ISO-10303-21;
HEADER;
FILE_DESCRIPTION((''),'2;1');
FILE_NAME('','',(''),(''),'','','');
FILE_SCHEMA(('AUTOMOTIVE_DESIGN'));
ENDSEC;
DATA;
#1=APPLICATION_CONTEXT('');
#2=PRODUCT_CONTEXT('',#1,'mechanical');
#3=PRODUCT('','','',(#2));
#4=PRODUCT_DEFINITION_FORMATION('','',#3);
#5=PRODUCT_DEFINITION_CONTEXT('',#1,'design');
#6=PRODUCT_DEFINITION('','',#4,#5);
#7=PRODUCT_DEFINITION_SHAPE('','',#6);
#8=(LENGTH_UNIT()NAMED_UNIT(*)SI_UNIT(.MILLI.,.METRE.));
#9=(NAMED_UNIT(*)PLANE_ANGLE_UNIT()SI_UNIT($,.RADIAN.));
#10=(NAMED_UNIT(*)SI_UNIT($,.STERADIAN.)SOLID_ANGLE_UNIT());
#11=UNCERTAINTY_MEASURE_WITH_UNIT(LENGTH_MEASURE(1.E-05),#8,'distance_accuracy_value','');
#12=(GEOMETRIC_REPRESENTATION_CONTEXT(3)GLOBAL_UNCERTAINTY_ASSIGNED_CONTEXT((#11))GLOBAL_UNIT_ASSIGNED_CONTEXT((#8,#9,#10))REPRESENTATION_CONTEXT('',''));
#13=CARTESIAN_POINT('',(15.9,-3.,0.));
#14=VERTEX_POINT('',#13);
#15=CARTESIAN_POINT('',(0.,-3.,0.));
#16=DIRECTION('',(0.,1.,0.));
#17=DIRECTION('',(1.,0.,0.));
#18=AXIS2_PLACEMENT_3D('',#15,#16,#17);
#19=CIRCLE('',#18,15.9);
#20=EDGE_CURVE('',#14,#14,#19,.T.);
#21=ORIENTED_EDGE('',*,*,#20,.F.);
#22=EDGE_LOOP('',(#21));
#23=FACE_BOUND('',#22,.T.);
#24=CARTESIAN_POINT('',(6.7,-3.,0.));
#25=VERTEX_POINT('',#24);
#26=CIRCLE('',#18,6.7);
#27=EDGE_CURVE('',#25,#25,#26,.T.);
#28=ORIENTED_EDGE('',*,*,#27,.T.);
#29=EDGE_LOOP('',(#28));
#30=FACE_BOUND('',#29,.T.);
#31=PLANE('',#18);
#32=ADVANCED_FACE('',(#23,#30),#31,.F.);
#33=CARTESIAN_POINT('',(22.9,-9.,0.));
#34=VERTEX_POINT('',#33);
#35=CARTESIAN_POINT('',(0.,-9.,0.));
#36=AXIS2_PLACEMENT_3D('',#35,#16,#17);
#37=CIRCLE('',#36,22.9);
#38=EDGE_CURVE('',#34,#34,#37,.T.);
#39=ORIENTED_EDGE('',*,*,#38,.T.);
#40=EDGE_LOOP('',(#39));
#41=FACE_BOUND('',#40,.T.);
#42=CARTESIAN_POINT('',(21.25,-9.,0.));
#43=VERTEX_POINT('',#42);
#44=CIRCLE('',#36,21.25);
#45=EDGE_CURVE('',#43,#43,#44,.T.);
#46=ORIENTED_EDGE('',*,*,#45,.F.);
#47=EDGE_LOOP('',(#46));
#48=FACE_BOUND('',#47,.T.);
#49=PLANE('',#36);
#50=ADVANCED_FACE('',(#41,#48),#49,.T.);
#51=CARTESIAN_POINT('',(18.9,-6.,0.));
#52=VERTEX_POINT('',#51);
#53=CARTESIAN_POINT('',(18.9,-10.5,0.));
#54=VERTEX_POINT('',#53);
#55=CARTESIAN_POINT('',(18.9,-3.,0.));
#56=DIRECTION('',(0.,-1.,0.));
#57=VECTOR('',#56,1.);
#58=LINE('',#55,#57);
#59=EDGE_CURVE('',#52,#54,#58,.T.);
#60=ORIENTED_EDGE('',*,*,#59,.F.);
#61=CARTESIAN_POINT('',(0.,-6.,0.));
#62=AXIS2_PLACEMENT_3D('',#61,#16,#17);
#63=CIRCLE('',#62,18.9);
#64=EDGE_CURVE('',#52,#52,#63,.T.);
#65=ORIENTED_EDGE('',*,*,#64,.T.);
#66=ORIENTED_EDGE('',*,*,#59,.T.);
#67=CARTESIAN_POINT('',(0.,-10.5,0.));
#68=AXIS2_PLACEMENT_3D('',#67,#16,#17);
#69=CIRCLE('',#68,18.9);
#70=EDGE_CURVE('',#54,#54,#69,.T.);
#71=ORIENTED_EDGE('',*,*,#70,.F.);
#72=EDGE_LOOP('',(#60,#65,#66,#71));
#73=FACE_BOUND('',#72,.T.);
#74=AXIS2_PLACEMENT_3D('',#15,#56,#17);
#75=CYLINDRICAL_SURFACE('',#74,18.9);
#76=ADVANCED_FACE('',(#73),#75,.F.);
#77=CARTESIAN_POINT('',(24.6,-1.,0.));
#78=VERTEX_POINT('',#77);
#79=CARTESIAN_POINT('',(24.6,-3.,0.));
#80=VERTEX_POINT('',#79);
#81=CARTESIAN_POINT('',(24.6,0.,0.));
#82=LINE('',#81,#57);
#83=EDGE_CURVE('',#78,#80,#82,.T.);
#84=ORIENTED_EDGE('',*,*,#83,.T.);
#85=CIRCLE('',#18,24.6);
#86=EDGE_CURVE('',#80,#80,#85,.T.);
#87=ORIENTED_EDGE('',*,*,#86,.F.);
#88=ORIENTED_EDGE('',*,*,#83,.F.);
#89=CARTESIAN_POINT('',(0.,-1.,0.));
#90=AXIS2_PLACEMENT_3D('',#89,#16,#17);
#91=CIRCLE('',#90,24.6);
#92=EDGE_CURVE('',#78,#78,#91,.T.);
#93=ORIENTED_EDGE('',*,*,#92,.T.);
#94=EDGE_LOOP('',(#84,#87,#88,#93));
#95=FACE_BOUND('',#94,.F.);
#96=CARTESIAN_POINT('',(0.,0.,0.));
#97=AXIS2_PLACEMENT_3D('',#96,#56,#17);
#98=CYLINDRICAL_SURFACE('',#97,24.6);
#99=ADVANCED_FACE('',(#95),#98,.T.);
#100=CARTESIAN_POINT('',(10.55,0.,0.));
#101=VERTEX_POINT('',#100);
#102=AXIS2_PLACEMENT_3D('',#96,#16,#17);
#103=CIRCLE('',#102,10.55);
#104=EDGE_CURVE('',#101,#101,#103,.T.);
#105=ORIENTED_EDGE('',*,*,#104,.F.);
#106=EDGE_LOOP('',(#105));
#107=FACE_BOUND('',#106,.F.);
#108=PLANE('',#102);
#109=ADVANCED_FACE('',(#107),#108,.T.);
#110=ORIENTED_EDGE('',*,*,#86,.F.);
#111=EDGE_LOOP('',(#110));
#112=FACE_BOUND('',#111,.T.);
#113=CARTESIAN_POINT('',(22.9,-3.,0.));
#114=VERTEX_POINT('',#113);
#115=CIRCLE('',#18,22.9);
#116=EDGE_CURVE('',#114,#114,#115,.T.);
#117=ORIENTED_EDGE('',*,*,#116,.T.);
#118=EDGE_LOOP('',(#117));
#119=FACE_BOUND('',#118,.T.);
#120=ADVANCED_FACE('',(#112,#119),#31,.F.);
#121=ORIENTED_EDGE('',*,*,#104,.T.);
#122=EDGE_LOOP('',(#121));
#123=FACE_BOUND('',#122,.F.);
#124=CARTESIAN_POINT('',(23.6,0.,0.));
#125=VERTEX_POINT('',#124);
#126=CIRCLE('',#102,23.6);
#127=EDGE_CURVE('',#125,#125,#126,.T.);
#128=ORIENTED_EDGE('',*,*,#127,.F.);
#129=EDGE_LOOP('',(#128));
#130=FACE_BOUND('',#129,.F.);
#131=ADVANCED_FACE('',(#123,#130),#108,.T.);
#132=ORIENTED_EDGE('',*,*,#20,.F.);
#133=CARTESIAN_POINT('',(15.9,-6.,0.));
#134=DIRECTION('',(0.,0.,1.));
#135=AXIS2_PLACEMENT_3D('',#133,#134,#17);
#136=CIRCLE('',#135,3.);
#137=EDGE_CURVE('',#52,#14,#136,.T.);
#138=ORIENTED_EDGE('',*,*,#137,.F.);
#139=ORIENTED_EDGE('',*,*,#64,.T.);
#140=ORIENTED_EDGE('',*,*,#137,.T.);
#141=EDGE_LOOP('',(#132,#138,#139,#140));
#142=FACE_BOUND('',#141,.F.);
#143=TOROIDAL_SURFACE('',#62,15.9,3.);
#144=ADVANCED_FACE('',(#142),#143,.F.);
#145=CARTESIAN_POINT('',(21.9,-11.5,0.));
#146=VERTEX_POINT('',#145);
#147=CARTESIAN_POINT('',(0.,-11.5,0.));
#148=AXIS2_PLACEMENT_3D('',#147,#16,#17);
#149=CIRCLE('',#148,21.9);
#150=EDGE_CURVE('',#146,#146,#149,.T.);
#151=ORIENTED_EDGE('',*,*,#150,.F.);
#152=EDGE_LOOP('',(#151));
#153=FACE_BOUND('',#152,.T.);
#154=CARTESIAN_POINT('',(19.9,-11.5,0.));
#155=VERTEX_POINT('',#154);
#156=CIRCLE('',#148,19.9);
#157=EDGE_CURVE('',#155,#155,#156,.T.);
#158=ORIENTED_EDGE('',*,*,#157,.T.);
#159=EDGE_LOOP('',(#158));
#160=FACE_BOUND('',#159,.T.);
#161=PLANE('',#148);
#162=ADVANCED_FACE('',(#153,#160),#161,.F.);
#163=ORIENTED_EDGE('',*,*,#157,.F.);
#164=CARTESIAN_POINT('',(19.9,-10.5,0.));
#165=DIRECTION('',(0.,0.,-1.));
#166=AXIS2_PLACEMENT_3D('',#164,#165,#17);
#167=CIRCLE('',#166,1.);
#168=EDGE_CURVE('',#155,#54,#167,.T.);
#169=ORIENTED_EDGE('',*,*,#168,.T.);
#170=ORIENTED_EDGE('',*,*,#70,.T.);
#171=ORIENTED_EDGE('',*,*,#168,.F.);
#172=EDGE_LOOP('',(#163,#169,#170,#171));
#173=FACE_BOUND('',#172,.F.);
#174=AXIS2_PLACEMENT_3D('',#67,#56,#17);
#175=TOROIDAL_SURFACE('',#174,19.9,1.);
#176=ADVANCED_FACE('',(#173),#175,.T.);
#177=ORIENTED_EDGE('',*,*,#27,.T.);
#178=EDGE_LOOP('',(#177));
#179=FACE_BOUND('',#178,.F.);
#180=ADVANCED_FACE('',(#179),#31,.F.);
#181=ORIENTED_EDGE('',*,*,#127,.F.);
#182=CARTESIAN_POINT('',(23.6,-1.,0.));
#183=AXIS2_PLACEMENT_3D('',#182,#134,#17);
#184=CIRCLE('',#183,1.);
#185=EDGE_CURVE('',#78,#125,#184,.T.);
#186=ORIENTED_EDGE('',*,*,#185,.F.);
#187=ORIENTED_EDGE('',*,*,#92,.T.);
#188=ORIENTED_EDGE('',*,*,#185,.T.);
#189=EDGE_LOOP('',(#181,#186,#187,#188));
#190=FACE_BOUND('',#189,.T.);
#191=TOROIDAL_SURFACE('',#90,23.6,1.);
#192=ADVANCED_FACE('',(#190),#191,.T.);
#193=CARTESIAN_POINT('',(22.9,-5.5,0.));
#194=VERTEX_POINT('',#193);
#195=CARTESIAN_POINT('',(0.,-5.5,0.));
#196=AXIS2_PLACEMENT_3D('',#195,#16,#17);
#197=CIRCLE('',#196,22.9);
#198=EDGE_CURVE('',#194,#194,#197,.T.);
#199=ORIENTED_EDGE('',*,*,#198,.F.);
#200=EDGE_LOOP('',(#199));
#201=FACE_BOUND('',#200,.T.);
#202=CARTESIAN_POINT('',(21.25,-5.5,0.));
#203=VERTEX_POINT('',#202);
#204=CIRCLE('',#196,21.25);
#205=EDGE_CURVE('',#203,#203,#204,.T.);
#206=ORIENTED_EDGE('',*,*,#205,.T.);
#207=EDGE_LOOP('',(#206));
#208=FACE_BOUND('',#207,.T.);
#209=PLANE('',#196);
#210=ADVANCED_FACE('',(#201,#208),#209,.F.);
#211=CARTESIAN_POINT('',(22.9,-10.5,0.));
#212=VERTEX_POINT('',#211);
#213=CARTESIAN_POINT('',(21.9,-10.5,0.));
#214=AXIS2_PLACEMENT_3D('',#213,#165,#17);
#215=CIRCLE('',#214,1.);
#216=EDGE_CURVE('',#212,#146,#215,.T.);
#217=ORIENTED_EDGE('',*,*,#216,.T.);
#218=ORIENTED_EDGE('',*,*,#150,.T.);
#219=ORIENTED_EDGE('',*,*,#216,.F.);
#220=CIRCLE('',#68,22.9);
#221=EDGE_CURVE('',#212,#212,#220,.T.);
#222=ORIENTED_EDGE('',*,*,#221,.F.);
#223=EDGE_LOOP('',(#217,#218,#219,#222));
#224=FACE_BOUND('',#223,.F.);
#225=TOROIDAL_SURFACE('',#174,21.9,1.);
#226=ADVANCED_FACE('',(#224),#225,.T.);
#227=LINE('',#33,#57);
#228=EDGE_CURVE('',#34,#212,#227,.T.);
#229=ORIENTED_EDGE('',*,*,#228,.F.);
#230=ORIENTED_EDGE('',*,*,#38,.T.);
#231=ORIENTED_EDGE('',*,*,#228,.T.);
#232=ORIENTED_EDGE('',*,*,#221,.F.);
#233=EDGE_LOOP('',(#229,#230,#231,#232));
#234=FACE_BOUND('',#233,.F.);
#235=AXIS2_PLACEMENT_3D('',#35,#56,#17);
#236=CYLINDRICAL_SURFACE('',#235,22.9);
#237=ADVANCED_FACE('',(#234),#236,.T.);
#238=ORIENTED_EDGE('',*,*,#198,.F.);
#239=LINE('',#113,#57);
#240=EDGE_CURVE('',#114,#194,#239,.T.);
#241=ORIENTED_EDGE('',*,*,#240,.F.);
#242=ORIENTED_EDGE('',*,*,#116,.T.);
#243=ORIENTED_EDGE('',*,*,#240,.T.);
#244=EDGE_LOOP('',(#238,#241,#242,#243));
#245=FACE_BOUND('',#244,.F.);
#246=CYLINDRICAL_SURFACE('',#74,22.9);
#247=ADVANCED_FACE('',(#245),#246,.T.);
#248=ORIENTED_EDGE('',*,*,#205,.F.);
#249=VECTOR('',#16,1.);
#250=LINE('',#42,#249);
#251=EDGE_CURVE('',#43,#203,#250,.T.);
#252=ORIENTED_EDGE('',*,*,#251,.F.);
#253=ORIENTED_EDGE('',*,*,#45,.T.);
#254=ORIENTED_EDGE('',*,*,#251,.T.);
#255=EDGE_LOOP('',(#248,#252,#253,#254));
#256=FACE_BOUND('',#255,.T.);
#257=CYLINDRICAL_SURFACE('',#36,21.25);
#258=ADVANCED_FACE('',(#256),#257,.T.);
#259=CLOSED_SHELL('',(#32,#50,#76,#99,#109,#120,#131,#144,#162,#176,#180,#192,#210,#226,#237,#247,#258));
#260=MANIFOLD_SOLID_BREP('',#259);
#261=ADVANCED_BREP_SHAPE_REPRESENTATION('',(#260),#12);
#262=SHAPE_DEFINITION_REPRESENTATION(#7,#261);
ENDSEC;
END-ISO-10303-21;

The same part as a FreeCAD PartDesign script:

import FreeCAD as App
import Part
import Sketcher
Q = App.Units.Quantity


def edges_at(feature, points):
    """Names of the edges that pass closest to the given points."""
    edges = feature.Shape.Edges
    near = lambda p: min(range(len(edges)), key=lambda i: edges[i].distToShape(Part.Vertex(*p))[0])
    return sorted({f"Edge{near(p) + 1}" for p in points})

doc = App.newDocument("Part")
body = doc.addObject("PartDesign::Body", "Body")

# Sketch on XY plane
sketch1 = body.newObject("Sketcher::SketchObject", "Sketch")
sketch1.AttachmentSupport = (doc.getObject("XY_Plane"), [""])
sketch1.MapMode = "FlatFace"
sketch1.addGeometry([
    Part.LineSegment(App.Vector(24.6, -3, 0), App.Vector(24.6, 0, 0)),  # 0
    Part.LineSegment(App.Vector(24.6, 0, 0), App.Vector(0, 0, 0)),  # 1
    Part.LineSegment(App.Vector(0, 0, 0), App.Vector(0, -3, 0)),  # 2
    Part.LineSegment(App.Vector(0, -3, 0), App.Vector(18.9, -3, 0)),  # 3
    Part.LineSegment(App.Vector(18.9, -3, 0), App.Vector(18.9, -11.5, 0)),  # 4
    Part.LineSegment(App.Vector(18.9, -11.5, 0), App.Vector(22.9, -11.5, 0)),  # 5
    Part.LineSegment(App.Vector(22.9, -11.5, 0), App.Vector(22.9, -9, 0)),  # 6
    Part.LineSegment(App.Vector(22.9, -9, 0), App.Vector(21.25, -9, 0)),  # 7
    Part.LineSegment(App.Vector(21.25, -9, 0), App.Vector(21.25, -5.5, 0)),  # 8
    Part.LineSegment(App.Vector(21.25, -5.5, 0), App.Vector(22.9, -5.5, 0)),  # 9
    Part.LineSegment(App.Vector(22.9, -5.5, 0), App.Vector(22.9, -3, 0)),  # 10
    Part.LineSegment(App.Vector(22.9, -3, 0), App.Vector(24.6, -3, 0)),  # 11
], False)
sketch1.addConstraint([
    Sketcher.Constraint("Coincident", 0, 2, 1, 1),
    Sketcher.Constraint("Coincident", 1, 2, 2, 1),
    Sketcher.Constraint("Coincident", 2, 2, 3, 1),
    Sketcher.Constraint("Coincident", 3, 2, 4, 1),
    Sketcher.Constraint("Coincident", 4, 2, 5, 1),
    Sketcher.Constraint("Coincident", 5, 2, 6, 1),
    Sketcher.Constraint("Coincident", 6, 2, 7, 1),
    Sketcher.Constraint("Coincident", 7, 2, 8, 1),
    Sketcher.Constraint("Coincident", 8, 2, 9, 1),
    Sketcher.Constraint("Coincident", 9, 2, 10, 1),
    Sketcher.Constraint("Coincident", 10, 2, 11, 1),
    Sketcher.Constraint("Coincident", 11, 2, 0, 1),
    Sketcher.Constraint("Vertical", 0),
    Sketcher.Constraint("Horizontal", 1),
    Sketcher.Constraint("Vertical", 2),
    Sketcher.Constraint("Horizontal", 3),
    Sketcher.Constraint("Vertical", 4),
    Sketcher.Constraint("Horizontal", 5),
    Sketcher.Constraint("Vertical", 6),
    Sketcher.Constraint("Horizontal", 7),
    Sketcher.Constraint("Vertical", 8),
    Sketcher.Constraint("Horizontal", 9),
    Sketcher.Constraint("Vertical", 10),
    Sketcher.Constraint("Horizontal", 11),
    Sketcher.Constraint("Coincident", 1, 2, -1, 1),
    Sketcher.Constraint("Horizontal", 3, 2, 10, 2),
    Sketcher.Constraint("Vertical", 6, 2, 9, 2),
    Sketcher.Constraint("Equal", 6, 10),
    Sketcher.Constraint("DistanceX", 5, 1, 5, 2, Q("4 mm")),
    Sketcher.Constraint("DistanceY", 0, 1, 0, 2, Q("3 mm")),
    Sketcher.Constraint("DistanceY", 4, 2, 4, 1, Q("8.5 mm")),
    Sketcher.Constraint("DistanceY", 8, 1, 8, 2, Q("3.5 mm")),
    Sketcher.Constraint("DistanceX", 7, 2, 7, 1, Q("1.65 mm")),
    Sketcher.Constraint("DistanceX", 1, 2, 1, 1, Q("24.6 mm")),
    Sketcher.Constraint("DistanceX", 3, 1, 3, 2, Q("18.9 mm")),
])
revolution = body.newObject("PartDesign::Revolution", "Revolution")
revolution.Profile = sketch1
revolution.ReferenceAxis = (sketch1, ["V_Axis"])
revolution.Angle = 360
doc.recompute()

fillet = body.newObject("PartDesign::Fillet", "Fillet")
fillet.Base = (revolution, edges_at(revolution, [(-24.6, 0, 0), (-22.9, -11.5, 0), (-18.9, -11.5, 0)]))
fillet.Radius = 1
doc.recompute()

fillet2 = body.newObject("PartDesign::Fillet", "Fillet001")
fillet2.Base = (fillet, edges_at(fillet, [(-10.55, 0, 0), (-6.7, -3, 0), (-18.9, -3, 0)]))
fillet2.Radius = 3

doc.recompute()
